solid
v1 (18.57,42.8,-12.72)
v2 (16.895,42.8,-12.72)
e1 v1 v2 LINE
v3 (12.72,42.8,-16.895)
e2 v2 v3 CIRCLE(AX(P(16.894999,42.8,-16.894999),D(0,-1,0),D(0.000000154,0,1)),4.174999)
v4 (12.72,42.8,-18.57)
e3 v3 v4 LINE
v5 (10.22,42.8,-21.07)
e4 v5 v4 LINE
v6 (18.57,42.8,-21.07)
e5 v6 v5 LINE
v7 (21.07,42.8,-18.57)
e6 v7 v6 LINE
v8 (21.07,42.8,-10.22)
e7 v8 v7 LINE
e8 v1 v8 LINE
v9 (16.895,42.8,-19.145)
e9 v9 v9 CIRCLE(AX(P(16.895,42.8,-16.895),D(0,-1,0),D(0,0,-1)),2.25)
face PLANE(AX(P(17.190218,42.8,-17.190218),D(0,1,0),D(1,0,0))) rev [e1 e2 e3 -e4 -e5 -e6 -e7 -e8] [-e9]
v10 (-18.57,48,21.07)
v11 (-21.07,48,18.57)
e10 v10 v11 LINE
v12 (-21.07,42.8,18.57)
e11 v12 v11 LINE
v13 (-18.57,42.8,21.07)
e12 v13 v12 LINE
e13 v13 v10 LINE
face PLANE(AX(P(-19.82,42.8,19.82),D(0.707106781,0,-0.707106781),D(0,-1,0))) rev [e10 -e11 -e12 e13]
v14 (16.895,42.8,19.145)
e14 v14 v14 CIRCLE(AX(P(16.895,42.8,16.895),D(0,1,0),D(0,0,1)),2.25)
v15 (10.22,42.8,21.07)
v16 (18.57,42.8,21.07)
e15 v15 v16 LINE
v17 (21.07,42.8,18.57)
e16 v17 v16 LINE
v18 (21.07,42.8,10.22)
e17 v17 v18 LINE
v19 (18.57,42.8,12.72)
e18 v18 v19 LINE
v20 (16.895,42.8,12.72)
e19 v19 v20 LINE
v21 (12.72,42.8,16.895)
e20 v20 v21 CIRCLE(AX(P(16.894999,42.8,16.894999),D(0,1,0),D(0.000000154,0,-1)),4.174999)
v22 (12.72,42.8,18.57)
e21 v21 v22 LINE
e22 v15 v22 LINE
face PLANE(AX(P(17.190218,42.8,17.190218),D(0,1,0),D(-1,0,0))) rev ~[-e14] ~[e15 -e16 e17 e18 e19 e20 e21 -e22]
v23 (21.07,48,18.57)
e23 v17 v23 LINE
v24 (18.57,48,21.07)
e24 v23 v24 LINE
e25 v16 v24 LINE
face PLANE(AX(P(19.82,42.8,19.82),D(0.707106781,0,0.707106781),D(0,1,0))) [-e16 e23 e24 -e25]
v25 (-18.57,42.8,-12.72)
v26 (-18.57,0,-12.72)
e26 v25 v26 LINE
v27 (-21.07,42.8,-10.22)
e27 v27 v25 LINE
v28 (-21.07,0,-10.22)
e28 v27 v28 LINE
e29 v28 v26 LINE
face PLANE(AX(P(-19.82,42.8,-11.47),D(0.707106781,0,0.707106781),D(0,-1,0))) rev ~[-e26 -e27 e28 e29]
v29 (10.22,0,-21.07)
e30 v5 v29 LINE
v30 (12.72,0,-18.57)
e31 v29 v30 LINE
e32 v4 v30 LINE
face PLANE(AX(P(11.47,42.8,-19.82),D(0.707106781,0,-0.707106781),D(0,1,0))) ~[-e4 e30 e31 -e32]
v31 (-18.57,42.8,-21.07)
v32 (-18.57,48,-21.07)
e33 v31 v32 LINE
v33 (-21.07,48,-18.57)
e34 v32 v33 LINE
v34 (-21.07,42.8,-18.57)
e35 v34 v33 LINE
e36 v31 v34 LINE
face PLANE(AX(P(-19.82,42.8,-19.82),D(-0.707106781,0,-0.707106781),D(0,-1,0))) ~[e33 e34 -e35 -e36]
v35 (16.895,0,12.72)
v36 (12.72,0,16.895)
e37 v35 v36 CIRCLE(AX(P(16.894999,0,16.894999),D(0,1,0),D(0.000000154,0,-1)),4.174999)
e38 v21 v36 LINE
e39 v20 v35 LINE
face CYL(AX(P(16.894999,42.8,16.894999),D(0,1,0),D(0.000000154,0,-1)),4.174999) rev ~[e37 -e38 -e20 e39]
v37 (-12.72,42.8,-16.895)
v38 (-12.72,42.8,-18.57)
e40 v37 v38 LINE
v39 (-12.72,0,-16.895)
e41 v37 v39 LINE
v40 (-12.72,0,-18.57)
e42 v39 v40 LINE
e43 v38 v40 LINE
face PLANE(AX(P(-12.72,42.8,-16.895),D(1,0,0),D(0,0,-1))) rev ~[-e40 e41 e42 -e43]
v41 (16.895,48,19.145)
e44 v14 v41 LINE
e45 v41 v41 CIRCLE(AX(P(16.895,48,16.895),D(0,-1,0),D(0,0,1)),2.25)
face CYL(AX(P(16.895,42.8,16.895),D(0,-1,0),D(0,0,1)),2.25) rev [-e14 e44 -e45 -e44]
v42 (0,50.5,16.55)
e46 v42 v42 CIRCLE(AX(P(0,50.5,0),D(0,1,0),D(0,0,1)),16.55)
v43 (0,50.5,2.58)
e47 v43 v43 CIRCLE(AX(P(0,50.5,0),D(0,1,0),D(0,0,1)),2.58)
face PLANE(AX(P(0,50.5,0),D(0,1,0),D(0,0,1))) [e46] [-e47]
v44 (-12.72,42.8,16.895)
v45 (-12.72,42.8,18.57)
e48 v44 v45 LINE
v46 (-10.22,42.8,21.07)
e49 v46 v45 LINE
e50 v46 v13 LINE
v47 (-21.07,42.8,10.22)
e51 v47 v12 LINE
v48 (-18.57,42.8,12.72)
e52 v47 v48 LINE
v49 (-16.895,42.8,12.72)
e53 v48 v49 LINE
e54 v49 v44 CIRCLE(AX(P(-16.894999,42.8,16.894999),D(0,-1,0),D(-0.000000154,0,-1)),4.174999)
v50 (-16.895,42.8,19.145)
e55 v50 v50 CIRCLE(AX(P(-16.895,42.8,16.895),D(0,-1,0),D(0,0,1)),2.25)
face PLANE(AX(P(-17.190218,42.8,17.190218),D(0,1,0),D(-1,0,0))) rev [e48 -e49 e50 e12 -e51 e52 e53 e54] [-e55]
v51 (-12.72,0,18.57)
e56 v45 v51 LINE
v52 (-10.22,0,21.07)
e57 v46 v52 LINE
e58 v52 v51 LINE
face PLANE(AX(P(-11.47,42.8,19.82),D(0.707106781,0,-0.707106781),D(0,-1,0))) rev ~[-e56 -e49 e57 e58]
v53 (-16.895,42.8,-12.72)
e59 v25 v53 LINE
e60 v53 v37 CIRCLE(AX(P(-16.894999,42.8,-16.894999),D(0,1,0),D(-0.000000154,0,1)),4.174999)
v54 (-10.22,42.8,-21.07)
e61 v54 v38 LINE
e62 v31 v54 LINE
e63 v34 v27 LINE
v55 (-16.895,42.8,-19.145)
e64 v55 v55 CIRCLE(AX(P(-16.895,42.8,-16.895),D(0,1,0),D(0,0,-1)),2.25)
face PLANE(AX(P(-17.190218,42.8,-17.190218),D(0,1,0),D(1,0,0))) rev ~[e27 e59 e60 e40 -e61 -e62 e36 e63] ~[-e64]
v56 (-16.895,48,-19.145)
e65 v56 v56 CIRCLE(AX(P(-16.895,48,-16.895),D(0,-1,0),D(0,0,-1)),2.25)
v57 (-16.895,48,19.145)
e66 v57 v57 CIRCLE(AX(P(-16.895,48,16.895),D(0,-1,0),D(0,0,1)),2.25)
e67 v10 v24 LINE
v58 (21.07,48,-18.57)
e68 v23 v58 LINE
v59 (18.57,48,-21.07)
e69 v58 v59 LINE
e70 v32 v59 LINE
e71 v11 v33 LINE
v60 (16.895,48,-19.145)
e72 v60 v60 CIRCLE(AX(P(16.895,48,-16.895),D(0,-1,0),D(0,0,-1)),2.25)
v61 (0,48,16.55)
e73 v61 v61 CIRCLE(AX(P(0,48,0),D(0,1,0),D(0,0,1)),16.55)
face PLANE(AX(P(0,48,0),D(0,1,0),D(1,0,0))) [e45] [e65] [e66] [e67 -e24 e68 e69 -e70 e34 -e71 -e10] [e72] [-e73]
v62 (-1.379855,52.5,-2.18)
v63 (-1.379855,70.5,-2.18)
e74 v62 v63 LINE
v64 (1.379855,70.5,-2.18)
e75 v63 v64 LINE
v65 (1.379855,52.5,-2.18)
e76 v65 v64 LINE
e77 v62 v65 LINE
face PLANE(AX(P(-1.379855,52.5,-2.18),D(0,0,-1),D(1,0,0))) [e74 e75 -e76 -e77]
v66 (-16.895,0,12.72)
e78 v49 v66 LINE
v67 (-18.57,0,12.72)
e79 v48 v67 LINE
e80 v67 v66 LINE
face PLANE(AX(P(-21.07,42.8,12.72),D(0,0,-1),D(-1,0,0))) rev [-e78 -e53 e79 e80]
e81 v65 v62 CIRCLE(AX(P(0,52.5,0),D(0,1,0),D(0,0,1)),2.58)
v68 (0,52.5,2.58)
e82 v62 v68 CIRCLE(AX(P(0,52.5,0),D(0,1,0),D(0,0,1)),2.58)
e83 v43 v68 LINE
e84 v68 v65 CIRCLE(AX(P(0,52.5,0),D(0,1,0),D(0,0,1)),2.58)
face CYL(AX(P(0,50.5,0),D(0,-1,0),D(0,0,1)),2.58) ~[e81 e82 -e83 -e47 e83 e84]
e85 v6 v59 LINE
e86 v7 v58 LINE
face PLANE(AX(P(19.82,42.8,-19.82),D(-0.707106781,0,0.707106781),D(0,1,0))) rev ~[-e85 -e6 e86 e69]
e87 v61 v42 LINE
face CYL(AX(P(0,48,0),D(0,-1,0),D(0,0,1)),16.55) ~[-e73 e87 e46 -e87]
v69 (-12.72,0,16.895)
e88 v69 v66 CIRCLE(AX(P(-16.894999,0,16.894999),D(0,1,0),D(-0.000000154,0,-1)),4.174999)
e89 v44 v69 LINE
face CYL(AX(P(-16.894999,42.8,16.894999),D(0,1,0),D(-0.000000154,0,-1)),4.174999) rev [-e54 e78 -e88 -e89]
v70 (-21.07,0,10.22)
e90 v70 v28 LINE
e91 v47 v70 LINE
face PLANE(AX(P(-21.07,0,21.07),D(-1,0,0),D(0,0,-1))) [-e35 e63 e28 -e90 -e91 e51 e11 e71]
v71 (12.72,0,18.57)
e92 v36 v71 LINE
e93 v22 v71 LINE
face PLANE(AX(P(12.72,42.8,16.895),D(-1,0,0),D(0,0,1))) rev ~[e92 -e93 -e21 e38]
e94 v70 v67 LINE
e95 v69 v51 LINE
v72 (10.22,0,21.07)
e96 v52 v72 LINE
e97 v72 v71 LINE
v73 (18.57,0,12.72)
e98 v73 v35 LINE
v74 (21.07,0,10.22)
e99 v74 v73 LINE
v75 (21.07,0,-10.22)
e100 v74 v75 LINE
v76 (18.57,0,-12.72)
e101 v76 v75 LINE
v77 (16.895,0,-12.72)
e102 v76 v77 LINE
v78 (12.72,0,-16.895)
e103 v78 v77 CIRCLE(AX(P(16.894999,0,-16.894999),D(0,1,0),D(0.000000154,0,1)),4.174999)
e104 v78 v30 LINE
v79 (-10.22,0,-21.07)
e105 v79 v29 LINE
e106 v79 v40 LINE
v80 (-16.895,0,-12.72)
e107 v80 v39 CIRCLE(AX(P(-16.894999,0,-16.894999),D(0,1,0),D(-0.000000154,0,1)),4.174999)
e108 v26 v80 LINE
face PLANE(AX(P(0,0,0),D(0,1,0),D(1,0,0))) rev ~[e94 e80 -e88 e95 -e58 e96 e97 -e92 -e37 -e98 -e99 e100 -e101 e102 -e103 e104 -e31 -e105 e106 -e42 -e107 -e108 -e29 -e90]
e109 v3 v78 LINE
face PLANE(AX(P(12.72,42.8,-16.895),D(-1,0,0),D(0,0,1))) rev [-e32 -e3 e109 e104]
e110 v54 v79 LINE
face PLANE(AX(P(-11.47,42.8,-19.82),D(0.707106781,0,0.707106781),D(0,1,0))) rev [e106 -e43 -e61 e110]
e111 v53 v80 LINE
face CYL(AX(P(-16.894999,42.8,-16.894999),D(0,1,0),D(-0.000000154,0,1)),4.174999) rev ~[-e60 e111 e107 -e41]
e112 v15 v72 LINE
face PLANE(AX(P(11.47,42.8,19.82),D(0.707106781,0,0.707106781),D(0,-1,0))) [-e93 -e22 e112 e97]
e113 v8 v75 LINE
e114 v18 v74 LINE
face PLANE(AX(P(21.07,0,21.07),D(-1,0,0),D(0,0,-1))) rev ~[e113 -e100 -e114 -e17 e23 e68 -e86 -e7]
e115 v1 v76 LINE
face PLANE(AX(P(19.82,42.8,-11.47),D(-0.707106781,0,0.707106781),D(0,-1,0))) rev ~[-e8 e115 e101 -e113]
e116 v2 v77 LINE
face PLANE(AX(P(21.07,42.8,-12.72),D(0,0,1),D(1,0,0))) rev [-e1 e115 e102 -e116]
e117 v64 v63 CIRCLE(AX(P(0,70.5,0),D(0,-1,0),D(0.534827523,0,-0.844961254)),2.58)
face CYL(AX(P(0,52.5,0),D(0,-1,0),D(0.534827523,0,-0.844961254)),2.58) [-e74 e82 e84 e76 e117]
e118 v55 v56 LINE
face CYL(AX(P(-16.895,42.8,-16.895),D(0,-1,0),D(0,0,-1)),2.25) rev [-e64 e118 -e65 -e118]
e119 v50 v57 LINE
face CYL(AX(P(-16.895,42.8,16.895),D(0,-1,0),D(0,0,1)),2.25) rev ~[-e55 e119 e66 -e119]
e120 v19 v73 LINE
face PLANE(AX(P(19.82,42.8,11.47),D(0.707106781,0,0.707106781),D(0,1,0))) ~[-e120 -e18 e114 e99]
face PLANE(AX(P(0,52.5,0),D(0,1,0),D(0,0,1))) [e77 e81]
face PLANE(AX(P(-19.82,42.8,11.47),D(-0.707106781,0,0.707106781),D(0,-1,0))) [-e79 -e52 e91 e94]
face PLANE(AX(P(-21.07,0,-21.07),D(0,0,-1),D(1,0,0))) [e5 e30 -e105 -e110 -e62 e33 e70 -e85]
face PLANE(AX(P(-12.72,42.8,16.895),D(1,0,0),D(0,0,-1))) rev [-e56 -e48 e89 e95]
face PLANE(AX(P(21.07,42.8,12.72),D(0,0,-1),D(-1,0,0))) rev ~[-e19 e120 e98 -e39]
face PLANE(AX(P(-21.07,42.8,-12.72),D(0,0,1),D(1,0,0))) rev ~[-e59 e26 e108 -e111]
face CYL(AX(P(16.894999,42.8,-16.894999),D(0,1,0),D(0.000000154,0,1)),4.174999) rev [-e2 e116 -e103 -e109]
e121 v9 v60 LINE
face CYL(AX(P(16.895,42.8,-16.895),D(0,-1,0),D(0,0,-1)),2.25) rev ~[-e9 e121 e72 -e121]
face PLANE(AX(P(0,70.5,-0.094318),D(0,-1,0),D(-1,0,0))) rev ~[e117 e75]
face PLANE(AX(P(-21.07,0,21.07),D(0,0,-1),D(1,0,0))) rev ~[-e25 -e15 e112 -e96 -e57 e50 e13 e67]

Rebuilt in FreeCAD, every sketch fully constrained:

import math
import FreeCAD as App
import Part
import Sketcher
from FreeCAD import Vector
Q = App.Units.Quantity


def edges_at(feature, points):
    """Names of the edges that pass closest to the given points."""
    edges = feature.Shape.Edges
    near = lambda p: min(range(len(edges)), key=lambda i: edges[i].distToShape(Part.Vertex(*p))[0])
    return sorted({f"Edge{near(p) + 1}" for p in points})

doc = App.newDocument("Part")
body = doc.addObject("PartDesign::Body", "Body")

# Sketch on XZ plane
sketch1 = body.newObject("Sketcher::SketchObject", "Sketch")
sketch1.AttachmentSupport = (doc.getObject("XZ_Plane"), [""])
sketch1.MapMode = "FlatFace"
sketch1.addGeometry(Part.LineSegment(Vector(-21, -21, 0), Vector(-21, 21, 0)), False)
sketch1.addGeometry(Part.LineSegment(Vector(-21, 21, 0), Vector(21, 21, 0)), False)
sketch1.addGeometry(Part.LineSegment(Vector(21, 21, 0), Vector(21, -21, 0)), False)
sketch1.addGeometry(Part.LineSegment(Vector(21, -21, 0), Vector(-21, -21, 0)), False)
sketch1.addConstraint(Sketcher.Constraint("Coincident", 0, 2, 1, 1))
sketch1.addConstraint(Sketcher.Constraint("Coincident", 1, 2, 2, 1))
sketch1.addConstraint(Sketcher.Constraint("Coincident", 2, 2, 3, 1))
sketch1.addConstraint(Sketcher.Constraint("Coincident", 3, 2, 0, 1))
sketch1.addConstraint(Sketcher.Constraint("Vertical", 0))
sketch1.addConstraint(Sketcher.Constraint("Horizontal", 1))
sketch1.addConstraint(Sketcher.Constraint("Vertical", 2))
sketch1.addConstraint(Sketcher.Constraint("Horizontal", 3))
sketch1.addConstraint(Sketcher.Constraint("Symmetric", 0, 2, 2, 2, -1, 1))
sketch1.addConstraint(Sketcher.Constraint("Equal", 3, 0))
sketch1.addConstraint(Sketcher.Constraint("DistanceX", 1, 1, 1, 2, Q("42.14 mm")))
pad1 = body.newObject("PartDesign::Pad", "Pad")
pad1.Profile = sketch1
pad1.Length = 48
pad1.Reversed = True

# Sketch on XZ plane
sketch2 = body.newObject("Sketcher::SketchObject", "Sketch001")
sketch2.AttachmentSupport = (doc.getObject("XZ_Plane"), [""])
sketch2.MapMode = "FlatFace"
sketch2.AttachmentOffset = App.Placement(Vector(0, 0, -42.8), App.Rotation())
sketch2.addGeometry(Part.LineSegment(Vector(-21.1, -12.7, 0), Vector(-16.9, -12.7, 0)), False)
sketch2.addGeometry(Part.ArcOfCircle(Part.Circle(Vector(-16.9, -16.9, 0), Vector(0, 0, 1), 4.2), math.radians(0), math.radians(90)), False)
sketch2.addGeometry(Part.LineSegment(Vector(-12.7, -16.9, 0), Vector(-12.7, -21.1, 0)), False)
sketch2.addGeometry(Part.LineSegment(Vector(-12.7, -21.1, 0), Vector(-21.1, -21.1, 0)), False)
sketch2.addGeometry(Part.LineSegment(Vector(-21.1, -21.1, 0), Vector(-21.1, -12.7, 0)), False)
sketch2.addConstraint(Sketcher.Constraint("Tangent", 0, 2, 1, 2))
sketch2.addConstraint(Sketcher.Constraint("Tangent", 1, 1, 2, 1))
sketch2.addConstraint(Sketcher.Constraint("Coincident", 2, 2, 3, 1))
sketch2.addConstraint(Sketcher.Constraint("Coincident", 3, 2, 4, 1))
sketch2.addConstraint(Sketcher.Constraint("Coincident", 4, 2, 0, 1))
sketch2.addConstraint(Sketcher.Constraint("Horizontal", 0))
sketch2.addConstraint(Sketcher.Constraint("Vertical", 2))
sketch2.addConstraint(Sketcher.Constraint("Horizontal", 3))
sketch2.addConstraint(Sketcher.Constraint("Vertical", 4))
sketch2.addConstraint(Sketcher.Constraint("Equal", 0, 2))
sketch2.addConstraint(Sketcher.Constraint("Radius", 1, Q("4.174999 mm")))
sketch2.addConstraint(Sketcher.Constraint("DistanceX", 3, 2, 3, 1, Q("8.35 mm")))
sketch2.addConstraint(Sketcher.Constraint("DistanceY", 0, 2, -1, 1, Q("12.72 mm")))
sketch2.addConstraint(Sketcher.Constraint("DistanceX", 1, 1, -1, 1, Q("12.72 mm")))
pocket1 = body.newObject("PartDesign::Pocket", "Pocket")
pocket1.Profile = sketch2
pocket1.Type = "ThroughAll"
pocket1.Reversed = True
doc.recompute()

mirrored = body.newObject("PartDesign::Mirrored", "Mirrored")
mirrored.Originals = [pocket1]
mirrored.MirrorPlane = (doc.getObject("YZ_Plane"), [""])
body.Tip = mirrored
doc.recompute()

mirrored2 = body.newObject("PartDesign::Mirrored", "Mirrored001")
mirrored2.Originals = [pocket1]
mirrored2.MirrorPlane = (doc.getObject("XY_Plane"), [""])
body.Tip = mirrored2

# Sketch on XZ plane
sketch3 = body.newObject("Sketcher::SketchObject", "Sketch002")
sketch3.AttachmentSupport = (doc.getObject("XZ_Plane"), [""])
sketch3.MapMode = "FlatFace"
sketch3.AttachmentOffset = App.Placement(Vector(0, 0, -42.8), App.Rotation())
sketch3.addGeometry(Part.LineSegment(Vector(21.1, 12.7, 0), Vector(16.9, 12.7, 0)), False)
sketch3.addGeometry(Part.ArcOfCircle(Part.Circle(Vector(16.9, 16.9, 0), Vector(0, 0, 1), 4.2), math.radians(180), math.radians(270)), False)
sketch3.addGeometry(Part.LineSegment(Vector(12.7, 16.9, 0), Vector(12.7, 21.1, 0)), False)
sketch3.addGeometry(Part.LineSegment(Vector(12.7, 21.1, 0), Vector(21.1, 21.1, 0)), False)
sketch3.addGeometry(Part.LineSegment(Vector(21.1, 21.1, 0), Vector(21.1, 12.7, 0)), False)
sketch3.addConstraint(Sketcher.Constraint("Tangent", 0, 2, 1, 2))
sketch3.addConstraint(Sketcher.Constraint("Tangent", 1, 1, 2, 1))
sketch3.addConstraint(Sketcher.Constraint("Coincident", 2, 2, 3, 1))
sketch3.addConstraint(Sketcher.Constraint("Coincident", 3, 2, 4, 1))
sketch3.addConstraint(Sketcher.Constraint("Coincident", 4, 2, 0, 1))
sketch3.addConstraint(Sketcher.Constraint("Horizontal", 0))
sketch3.addConstraint(Sketcher.Constraint("Vertical", 2))
sketch3.addConstraint(Sketcher.Constraint("Horizontal", 3))
sketch3.addConstraint(Sketcher.Constraint("Vertical", 4))
sketch3.addConstraint(Sketcher.Constraint("Equal", 0, 2))
sketch3.addConstraint(Sketcher.Constraint("Radius", 1, Q("4.174999 mm")))
sketch3.addConstraint(Sketcher.Constraint("DistanceX", 3, 1, 3, 2, Q("8.35 mm")))
sketch3.addConstraint(Sketcher.Constraint("DistanceY", -1, 1, 0, 2, Q("12.72 mm")))
sketch3.addConstraint(Sketcher.Constraint("DistanceX", -1, 1, 1, 1, Q("12.72 mm")))
pocket2 = body.newObject("PartDesign::Pocket", "Pocket001")
pocket2.Profile = sketch3
pocket2.Type = "ThroughAll"
pocket2.Reversed = True
doc.recompute()

chamfer = body.newObject("PartDesign::Chamfer", "Chamfer")
chamfer.Base = (pocket2, edges_at(pocket2, [
    (-21.07, 21.4, -12.72),
    (-12.72, 21.4, -21.07),
    (-21.07, 21.4, 12.72),
    (-12.72, 21.4, 21.07),
    (21.07, 21.4, -12.72),
    (12.72, 21.4, -21.07),
    (21.07, 21.4, 12.72),
    (12.72, 21.4, 21.07),
]))
chamfer.Size = 2.5

# Sketch on XZ plane
sketch4 = body.newObject("Sketcher::SketchObject", "Sketch003")
sketch4.AttachmentSupport = (doc.getObject("XZ_Plane"), [""])
sketch4.MapMode = "FlatFace"
sketch4.AttachmentOffset = App.Placement(Vector(0, 0, -42.8), App.Rotation())
sketch4.addGeometry(Part.Circle(Vector(16.9, -16.9, 0), Vector(0, 0, 1), 2.2), False)
sketch4.addConstraint(Sketcher.Constraint("Diameter", 0, Q("4.5 mm")))
sketch4.addConstraint(Sketcher.Constraint("DistanceX", -1, 1, 0, 3, Q("16.895 mm")))
sketch4.addConstraint(Sketcher.Constraint("DistanceY", 0, 3, -1, 1, Q("16.895 mm")))
pocket3 = body.newObject("PartDesign::Pocket", "Pocket002")
pocket3.Profile = sketch4
pocket3.Type = "ThroughAll"
doc.recompute()

mirrored3 = body.newObject("PartDesign::Mirrored", "Mirrored002")
mirrored3.Originals = [pocket3]
mirrored3.MirrorPlane = (doc.getObject("YZ_Plane"), [""])
body.Tip = mirrored3
doc.recompute()

mirrored4 = body.newObject("PartDesign::Mirrored", "Mirrored003")
mirrored4.Originals = [pocket3]
mirrored4.MirrorPlane = (doc.getObject("XY_Plane"), [""])
body.Tip = mirrored4

# Sketch on XZ plane
sketch5 = body.newObject("Sketcher::SketchObject", "Sketch004")
sketch5.AttachmentSupport = (doc.getObject("XZ_Plane"), [""])
sketch5.MapMode = "FlatFace"
sketch5.AttachmentOffset = App.Placement(Vector(0, 0, -42.8), App.Rotation())
sketch5.addGeometry(Part.Circle(Vector(-16.9, 16.9, 0), Vector(0, 0, 1), 2.2), False)
sketch5.addConstraint(Sketcher.Constraint("Diameter", 0, Q("4.5 mm")))
sketch5.addConstraint(Sketcher.Constraint("DistanceX", 0, 3, -1, 1, Q("16.895 mm")))
sketch5.addConstraint(Sketcher.Constraint("DistanceY", -1, 1, 0, 3, Q("16.895 mm")))
pocket4 = body.newObject("PartDesign::Pocket", "Pocket003")
pocket4.Profile = sketch5
pocket4.Type = "ThroughAll"

# Sketch on XZ plane
sketch6 = body.newObject("Sketcher::SketchObject", "Sketch005")
sketch6.AttachmentSupport = (doc.getObject("XZ_Plane"), [""])
sketch6.MapMode = "FlatFace"
sketch6.AttachmentOffset = App.Placement(Vector(0, 0, -48), App.Rotation())
sketch6.addGeometry(Part.Circle(Vector(0, 0, 0), Vector(0, 0, 1), 17), False)
sketch6.addConstraint(Sketcher.Constraint("Coincident", 0, 3, -1, 1))
sketch6.addConstraint(Sketcher.Constraint("Diameter", 0, Q("33.1 mm")))
pad2 = body.newObject("PartDesign::Pad", "Pad001")
pad2.Profile = sketch6
pad2.Length = 2.5
pad2.Reversed = True

# Sketch on XZ plane
sketch7 = body.newObject("Sketcher::SketchObject", "Sketch006")
sketch7.AttachmentSupport = (doc.getObject("XZ_Plane"), [""])
sketch7.MapMode = "FlatFace"
sketch7.AttachmentOffset = App.Placement(Vector(0, 0, -50.5), App.Rotation())
sketch7.addGeometry(Part.Circle(Vector(0, 0, 0), Vector(0, 0, 1), 2.6), False)
sketch7.addConstraint(Sketcher.Constraint("Coincident", 0, 3, -1, 1))
sketch7.addConstraint(Sketcher.Constraint("Diameter", 0, Q("5.16 mm")))
pad3 = body.newObject("PartDesign::Pad", "Pad002")
pad3.Profile = sketch7
pad3.Length = 2
pad3.Reversed = True

# Sketch on XZ plane
sketch8 = body.newObject("Sketcher::SketchObject", "Sketch007")
sketch8.AttachmentSupport = (doc.getObject("XZ_Plane"), [""])
sketch8.MapMode = "FlatFace"
sketch8.AttachmentOffset = App.Placement(Vector(0, 0, -52.5), App.Rotation())
sketch8.addGeometry(Part.LineSegment(Vector(1.4, -2.2, 0), Vector(-1.4, -2.2, 0)), False)
sketch8.addGeometry(Part.ArcOfCircle(Part.Circle(Vector(0, 0, 0), Vector(0, 0, 1), 2.6), math.radians(-58), math.radians(238)), False)
sketch8.addConstraint(Sketcher.Constraint("Coincident", 0, 1, 1, 1))
sketch8.addConstraint(Sketcher.Constraint("Coincident", 1, 2, 0, 2))
sketch8.addConstraint(Sketcher.Constraint("Horizontal", 0))
sketch8.addConstraint(Sketcher.Constraint("Coincident", 1, 3, -1, 1))
sketch8.addConstraint(Sketcher.Constraint("Radius", 1, Q("2.58 mm")))
sketch8.addConstraint(Sketcher.Constraint("DistanceY", 0, 1, -1, 1, Q("2.18 mm")))
pad4 = body.newObject("PartDesign::Pad", "Pad003")
pad4.Profile = sketch8
pad4.Length = 18
pad4.Reversed = True

# Sketch on XZ plane
sketch9 = body.newObject("Sketcher::SketchObject", "Sketch008")
sketch9.AttachmentSupport = (doc.getObject("XZ_Plane"), [""])
sketch9.MapMode = "FlatFace"
sketch9.AttachmentOffset = App.Placement(Vector(0, 0, -50.5), App.Rotation())
sketch9.addGeometry(Part.LineSegment(Vector(1.4, -2.2, 0), Vector(-1.4, -2.2, 0)), False)
sketch9.addGeometry(Part.ArcOfCircle(Part.Circle(Vector(0, 0, 0), Vector(0, 0, 1), 2.6), math.radians(-58), math.radians(238)), False)
sketch9.addConstraint(Sketcher.Constraint("Coincident", 0, 1, 1, 1))
sketch9.addConstraint(Sketcher.Constraint("Coincident", 1, 2, 0, 2))
sketch9.addConstraint(Sketcher.Constraint("Horizontal", 0))
sketch9.addConstraint(Sketcher.Constraint("Coincident", 1, 3, -1, 1))
sketch9.addConstraint(Sketcher.Constraint("Radius", 1, Q("2.58 mm")))
sketch9.addConstraint(Sketcher.Constraint("DistanceY", 0, 1, -1, 1, Q("2.18 mm")))
pad5 = body.newObject("PartDesign::Pad", "Pad004")
pad5.Profile = sketch9
pad5.Length = 20
pad5.Reversed = True
doc.recompute()

chamfer2 = body.newObject("PartDesign::Chamfer", "Chamfer001")
chamfer2.Base = (pad5, edges_at(pad5, [
    (-21.07, 45.4, -21.07),
    (21.07, 45.4, -21.07),
    (21.07, 45.4, 21.07),
    (-21.07, 45.4, 21.07),
]))
chamfer2.Size = 2.5

doc.recompute()
